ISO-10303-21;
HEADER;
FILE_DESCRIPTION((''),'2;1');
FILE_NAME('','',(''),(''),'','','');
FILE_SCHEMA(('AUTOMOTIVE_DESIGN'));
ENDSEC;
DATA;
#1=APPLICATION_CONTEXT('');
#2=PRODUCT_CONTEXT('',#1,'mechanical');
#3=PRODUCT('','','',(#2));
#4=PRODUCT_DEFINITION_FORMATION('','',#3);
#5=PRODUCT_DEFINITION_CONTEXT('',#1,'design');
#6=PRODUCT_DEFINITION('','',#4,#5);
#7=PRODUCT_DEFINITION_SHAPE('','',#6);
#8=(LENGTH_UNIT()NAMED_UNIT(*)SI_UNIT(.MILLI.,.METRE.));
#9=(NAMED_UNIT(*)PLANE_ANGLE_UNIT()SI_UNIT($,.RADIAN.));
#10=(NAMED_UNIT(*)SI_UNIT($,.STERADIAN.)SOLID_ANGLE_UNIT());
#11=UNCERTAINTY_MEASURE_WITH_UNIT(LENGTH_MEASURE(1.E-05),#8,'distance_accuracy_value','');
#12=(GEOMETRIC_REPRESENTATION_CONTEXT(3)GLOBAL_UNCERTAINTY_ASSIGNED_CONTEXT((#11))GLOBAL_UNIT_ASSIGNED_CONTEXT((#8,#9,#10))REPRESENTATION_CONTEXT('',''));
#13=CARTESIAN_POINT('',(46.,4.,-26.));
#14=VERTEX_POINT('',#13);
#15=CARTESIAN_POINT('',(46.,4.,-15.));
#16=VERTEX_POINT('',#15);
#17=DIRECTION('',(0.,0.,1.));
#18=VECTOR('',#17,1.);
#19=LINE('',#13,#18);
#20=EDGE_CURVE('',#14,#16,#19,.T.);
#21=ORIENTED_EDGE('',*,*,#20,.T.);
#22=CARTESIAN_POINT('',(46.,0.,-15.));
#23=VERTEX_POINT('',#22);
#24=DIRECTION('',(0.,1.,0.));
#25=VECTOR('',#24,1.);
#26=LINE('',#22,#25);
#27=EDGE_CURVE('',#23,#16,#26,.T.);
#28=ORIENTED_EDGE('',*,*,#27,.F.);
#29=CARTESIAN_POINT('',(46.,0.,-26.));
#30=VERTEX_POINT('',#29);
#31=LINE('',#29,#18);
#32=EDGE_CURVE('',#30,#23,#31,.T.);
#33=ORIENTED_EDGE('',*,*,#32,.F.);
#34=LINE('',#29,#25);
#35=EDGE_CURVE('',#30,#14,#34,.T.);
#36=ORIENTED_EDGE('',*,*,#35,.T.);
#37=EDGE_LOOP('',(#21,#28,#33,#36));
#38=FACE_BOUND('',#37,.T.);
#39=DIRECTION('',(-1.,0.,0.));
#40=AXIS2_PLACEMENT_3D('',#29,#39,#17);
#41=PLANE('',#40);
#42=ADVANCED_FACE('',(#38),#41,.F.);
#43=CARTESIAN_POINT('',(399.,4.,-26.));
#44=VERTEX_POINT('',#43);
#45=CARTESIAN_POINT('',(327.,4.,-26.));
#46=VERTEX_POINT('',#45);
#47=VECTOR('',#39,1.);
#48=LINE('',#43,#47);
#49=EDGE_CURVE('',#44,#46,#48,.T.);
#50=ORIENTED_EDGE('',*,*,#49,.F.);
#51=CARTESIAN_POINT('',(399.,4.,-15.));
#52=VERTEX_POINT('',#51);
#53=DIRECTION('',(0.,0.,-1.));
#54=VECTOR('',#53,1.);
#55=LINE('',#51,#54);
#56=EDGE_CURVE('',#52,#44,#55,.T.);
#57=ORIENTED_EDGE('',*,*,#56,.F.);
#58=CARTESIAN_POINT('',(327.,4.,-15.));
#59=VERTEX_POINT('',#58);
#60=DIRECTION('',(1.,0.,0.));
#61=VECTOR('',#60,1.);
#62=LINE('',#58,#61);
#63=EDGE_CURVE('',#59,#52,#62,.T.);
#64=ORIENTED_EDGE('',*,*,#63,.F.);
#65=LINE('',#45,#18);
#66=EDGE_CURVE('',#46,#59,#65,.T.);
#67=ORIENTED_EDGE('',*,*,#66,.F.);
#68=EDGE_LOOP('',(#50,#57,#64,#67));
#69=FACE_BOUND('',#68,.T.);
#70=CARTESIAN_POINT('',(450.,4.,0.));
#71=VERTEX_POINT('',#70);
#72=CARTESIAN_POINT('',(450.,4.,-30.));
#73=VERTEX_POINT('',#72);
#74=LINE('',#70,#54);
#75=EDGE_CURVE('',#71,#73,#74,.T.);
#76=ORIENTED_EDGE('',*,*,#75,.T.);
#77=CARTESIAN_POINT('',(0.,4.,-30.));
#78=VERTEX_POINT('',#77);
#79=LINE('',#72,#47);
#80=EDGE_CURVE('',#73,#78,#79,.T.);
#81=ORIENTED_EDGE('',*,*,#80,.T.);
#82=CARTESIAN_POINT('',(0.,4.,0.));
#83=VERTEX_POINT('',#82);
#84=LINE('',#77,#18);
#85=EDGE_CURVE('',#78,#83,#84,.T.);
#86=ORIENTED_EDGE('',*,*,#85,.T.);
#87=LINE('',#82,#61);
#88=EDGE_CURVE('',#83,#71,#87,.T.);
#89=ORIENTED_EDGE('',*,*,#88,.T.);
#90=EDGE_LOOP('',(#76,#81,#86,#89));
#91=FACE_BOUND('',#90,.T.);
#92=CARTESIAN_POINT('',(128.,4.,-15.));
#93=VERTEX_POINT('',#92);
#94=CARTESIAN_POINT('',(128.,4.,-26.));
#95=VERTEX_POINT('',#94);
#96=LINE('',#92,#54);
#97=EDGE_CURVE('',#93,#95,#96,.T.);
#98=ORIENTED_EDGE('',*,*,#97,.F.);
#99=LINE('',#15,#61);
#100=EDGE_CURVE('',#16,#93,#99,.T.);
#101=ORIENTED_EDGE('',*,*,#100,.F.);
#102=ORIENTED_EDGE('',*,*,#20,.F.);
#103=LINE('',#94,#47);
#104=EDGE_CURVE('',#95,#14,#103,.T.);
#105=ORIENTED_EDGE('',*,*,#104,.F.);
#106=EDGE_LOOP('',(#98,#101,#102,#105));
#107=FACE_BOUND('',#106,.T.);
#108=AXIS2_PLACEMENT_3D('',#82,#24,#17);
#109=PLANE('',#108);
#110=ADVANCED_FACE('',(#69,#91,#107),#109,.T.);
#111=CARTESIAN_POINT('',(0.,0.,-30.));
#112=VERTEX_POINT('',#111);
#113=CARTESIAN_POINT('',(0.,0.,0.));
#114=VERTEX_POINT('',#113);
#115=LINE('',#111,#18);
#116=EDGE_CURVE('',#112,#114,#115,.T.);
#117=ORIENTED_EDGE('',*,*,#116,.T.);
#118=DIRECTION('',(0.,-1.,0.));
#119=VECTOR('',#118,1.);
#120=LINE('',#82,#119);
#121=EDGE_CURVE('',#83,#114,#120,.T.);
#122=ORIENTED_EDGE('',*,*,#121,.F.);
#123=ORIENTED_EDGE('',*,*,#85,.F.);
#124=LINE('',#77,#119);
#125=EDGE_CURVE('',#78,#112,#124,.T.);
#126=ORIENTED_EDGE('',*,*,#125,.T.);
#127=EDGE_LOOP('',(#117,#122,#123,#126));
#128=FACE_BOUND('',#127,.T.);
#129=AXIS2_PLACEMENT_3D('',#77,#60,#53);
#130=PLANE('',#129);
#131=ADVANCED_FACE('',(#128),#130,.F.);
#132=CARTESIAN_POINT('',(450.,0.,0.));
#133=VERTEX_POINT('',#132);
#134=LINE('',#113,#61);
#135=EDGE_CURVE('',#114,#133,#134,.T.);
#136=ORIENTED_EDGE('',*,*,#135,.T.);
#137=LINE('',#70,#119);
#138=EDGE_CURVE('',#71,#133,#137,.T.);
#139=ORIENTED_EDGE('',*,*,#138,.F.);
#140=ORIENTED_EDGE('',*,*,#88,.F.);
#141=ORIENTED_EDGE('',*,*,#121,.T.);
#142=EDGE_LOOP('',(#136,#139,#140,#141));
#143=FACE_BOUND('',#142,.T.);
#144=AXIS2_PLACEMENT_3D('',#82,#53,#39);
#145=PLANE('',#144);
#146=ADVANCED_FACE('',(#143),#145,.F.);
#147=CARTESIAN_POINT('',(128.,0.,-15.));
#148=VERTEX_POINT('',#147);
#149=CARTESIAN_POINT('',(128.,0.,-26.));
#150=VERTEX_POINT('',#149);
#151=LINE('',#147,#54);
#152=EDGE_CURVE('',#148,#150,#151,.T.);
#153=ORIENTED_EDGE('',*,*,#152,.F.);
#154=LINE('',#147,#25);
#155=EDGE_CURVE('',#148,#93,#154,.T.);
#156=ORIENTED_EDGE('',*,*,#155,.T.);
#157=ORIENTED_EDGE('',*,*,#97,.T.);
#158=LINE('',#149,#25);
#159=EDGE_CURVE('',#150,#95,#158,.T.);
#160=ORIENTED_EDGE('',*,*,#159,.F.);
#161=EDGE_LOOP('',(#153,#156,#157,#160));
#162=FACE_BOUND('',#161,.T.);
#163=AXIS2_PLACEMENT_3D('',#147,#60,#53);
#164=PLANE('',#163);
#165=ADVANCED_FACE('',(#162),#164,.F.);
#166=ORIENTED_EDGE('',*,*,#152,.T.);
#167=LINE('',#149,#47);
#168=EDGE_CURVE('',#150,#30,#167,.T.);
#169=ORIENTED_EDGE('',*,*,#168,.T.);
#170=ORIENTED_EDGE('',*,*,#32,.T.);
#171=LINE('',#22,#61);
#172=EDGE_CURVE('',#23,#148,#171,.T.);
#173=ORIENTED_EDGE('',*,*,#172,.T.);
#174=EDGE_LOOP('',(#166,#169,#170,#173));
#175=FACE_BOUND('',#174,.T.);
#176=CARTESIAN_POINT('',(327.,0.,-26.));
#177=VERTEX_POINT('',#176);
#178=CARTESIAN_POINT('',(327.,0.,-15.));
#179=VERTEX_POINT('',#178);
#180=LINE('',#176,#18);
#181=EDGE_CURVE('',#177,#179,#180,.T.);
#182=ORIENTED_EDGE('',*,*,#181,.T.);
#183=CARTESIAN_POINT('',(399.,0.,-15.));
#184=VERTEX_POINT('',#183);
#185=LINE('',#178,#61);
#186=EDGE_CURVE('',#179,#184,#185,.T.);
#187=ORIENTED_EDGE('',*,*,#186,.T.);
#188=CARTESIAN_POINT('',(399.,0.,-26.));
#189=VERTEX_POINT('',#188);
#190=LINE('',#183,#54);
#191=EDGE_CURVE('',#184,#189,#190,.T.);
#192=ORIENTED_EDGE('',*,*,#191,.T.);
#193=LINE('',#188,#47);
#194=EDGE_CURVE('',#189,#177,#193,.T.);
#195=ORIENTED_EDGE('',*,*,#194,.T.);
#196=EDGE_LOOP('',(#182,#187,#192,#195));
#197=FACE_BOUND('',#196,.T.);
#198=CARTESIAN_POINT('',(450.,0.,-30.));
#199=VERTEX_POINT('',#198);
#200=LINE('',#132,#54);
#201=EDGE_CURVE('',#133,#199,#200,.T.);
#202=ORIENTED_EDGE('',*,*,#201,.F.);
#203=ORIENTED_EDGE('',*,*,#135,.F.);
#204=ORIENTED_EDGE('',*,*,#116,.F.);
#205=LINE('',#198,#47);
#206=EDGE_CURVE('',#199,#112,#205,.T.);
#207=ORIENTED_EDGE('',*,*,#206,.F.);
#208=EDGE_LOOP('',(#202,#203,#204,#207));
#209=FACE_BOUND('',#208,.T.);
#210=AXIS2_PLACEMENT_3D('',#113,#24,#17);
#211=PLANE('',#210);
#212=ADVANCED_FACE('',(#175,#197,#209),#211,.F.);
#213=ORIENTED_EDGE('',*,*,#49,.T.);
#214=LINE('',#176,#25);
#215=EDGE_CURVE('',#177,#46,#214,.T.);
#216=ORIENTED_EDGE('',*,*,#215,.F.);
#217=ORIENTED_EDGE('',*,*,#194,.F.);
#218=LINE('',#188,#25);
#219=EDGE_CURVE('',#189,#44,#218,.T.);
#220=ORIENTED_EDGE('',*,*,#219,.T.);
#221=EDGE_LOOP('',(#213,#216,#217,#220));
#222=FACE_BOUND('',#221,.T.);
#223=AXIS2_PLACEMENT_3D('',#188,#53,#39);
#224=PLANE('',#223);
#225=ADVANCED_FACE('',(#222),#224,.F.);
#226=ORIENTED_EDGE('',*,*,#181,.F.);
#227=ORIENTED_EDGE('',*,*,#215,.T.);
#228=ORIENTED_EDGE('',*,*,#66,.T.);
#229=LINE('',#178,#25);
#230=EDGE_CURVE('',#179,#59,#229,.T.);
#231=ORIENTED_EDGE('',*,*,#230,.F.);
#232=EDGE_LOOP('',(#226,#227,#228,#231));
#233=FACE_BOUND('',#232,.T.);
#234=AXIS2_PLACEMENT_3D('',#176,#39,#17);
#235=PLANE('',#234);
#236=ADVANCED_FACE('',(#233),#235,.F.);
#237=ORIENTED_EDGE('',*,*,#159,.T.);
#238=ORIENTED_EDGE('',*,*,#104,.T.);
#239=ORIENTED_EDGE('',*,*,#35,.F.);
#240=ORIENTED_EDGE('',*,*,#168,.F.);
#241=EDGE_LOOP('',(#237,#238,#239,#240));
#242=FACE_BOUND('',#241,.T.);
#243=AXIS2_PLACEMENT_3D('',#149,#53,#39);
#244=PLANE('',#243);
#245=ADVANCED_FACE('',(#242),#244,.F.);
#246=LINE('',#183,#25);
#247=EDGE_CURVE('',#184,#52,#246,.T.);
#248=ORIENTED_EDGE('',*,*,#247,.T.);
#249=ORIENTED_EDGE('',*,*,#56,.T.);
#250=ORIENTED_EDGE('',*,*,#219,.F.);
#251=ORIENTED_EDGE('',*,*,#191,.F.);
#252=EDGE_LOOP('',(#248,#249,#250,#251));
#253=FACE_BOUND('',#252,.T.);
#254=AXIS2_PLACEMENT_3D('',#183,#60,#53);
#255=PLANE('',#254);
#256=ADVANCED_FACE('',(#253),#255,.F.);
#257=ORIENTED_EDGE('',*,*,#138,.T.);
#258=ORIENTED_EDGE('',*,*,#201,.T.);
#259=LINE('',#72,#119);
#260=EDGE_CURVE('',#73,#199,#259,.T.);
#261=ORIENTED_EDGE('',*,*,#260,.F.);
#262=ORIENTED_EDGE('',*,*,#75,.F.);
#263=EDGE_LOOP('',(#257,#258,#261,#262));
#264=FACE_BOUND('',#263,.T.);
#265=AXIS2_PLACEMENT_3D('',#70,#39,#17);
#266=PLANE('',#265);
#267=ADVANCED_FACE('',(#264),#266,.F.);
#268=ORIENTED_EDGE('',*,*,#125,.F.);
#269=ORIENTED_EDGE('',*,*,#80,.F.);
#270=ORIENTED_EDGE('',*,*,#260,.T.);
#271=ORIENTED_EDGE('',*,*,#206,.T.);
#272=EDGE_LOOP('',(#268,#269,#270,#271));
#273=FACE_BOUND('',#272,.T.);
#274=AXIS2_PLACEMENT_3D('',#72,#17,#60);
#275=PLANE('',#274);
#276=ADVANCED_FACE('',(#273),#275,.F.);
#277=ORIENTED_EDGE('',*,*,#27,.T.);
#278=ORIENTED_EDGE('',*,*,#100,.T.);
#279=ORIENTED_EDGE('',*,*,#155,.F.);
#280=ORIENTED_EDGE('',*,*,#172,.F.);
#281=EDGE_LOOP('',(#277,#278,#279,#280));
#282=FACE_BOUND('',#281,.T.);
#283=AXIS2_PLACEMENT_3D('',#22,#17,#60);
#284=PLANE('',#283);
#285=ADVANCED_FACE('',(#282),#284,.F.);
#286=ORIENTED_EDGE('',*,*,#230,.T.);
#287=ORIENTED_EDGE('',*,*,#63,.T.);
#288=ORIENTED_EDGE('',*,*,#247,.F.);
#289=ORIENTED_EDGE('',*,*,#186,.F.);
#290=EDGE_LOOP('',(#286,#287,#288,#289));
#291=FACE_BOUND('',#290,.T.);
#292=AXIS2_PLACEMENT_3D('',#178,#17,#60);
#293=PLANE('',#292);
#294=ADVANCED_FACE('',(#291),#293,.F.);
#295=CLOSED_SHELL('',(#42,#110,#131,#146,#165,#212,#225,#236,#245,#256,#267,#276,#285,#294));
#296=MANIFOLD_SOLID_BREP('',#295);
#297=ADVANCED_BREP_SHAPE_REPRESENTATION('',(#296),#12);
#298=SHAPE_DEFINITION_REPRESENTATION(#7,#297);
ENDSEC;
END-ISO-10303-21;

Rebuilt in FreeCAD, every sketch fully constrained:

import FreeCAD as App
import Part
import Sketcher
from FreeCAD import Vector


def add_polygon(sketch, points):
    """Adds a closed chain of lines whose ends are joined by coincident constraints."""
    first, n = sketch.GeometryCount, len(points)
    for a, b in zip(points, points[1:] + points[:1]):
        sketch.addGeometry(Part.LineSegment(App.Vector(*a, 0), App.Vector(*b, 0)), False)
    for i in range(n):
        sketch.addConstraint(Sketcher.Constraint("Coincident", first + i, 2, first + (i + 1) % n, 1))

doc = App.newDocument("Part")
body = doc.addObject("PartDesign::Body", "Body")

# Sketch on XZ plane
sketch1 = doc.addObject("Sketcher::SketchObject", "Sketch")
body.addObject(sketch1)
sketch1.AttachmentSupport = (doc.XZ_Plane, [""])
sketch1.MapMode = "FlatFace"
add_polygon(sketch1, [(0, -30), (0, 0), (450, 0), (450, -30)])  # lines 0-3
sketch1.addConstraint(Sketcher.Constraint("Vertical", 0))
sketch1.addConstraint(Sketcher.Constraint("Horizontal", 1))
sketch1.addConstraint(Sketcher.Constraint("Vertical", 2))
sketch1.addConstraint(Sketcher.Constraint("Horizontal", 3))
sketch1.addConstraint(Sketcher.Constraint("Coincident", 0, 2, -1, 1))
sketch1.addConstraint(Sketcher.Constraint("DistanceX", 1, 1, 1, 2, 450.0))
sketch1.addConstraint(Sketcher.Constraint("DistanceY", 0, 1, 0, 2, 30.0))
pad1 = doc.addObject("PartDesign::Pad", "Pad")
body.addObject(pad1)
pad1.Profile = sketch1
pad1.Length = 4
pad1.Reversed = True

# Sketch on XZ plane
sketch2 = doc.addObject("Sketcher::SketchObject", "Sketch001")
body.addObject(sketch2)
sketch2.AttachmentSupport = (doc.XZ_Plane, [""])
sketch2.MapMode = "FlatFace"
sketch2.AttachmentOffset = App.Placement(Vector(0, 0, -4), App.Rotation())
add_polygon(sketch2, [(46, -26), (46, -15), (128, -15), (128, -26)])  # lines 0-3
add_polygon(sketch2, [(327, -26), (327, -15), (399, -15), (399, -26)])  # lines 4-7
sketch2.addConstraint(Sketcher.Constraint("Vertical", 0))
sketch2.addConstraint(Sketcher.Constraint("Horizontal", 1))
sketch2.addConstraint(Sketcher.Constraint("Vertical", 2))
sketch2.addConstraint(Sketcher.Constraint("Horizontal", 3))
sketch2.addConstraint(Sketcher.Constraint("Vertical", 4))
sketch2.addConstraint(Sketcher.Constraint("Horizontal", 5))
sketch2.addConstraint(Sketcher.Constraint("Vertical", 6))
sketch2.addConstraint(Sketcher.Constraint("Horizontal", 7))
sketch2.addConstraint(Sketcher.Constraint("Horizontal", 1, 2, 4, 2))
sketch2.addConstraint(Sketcher.Constraint("Horizontal", 3, 2, 6, 2))
sketch2.addConstraint(Sketcher.Constraint("DistanceX", 1, 1, 1, 2, 82.0))
sketch2.addConstraint(Sketcher.Constraint("DistanceX", 5, 1, 5, 2, 72.0))
sketch2.addConstraint(Sketcher.Constraint("DistanceY", 0, 1, 0, 2, 11.0))
sketch2.addConstraint(Sketcher.Constraint("DistanceX", -1, 1, 0, 2, 46.0))
sketch2.addConstraint(Sketcher.Constraint("DistanceY", 0, 2, -1, 1, 15.0))
sketch2.addConstraint(Sketcher.Constraint("DistanceX", -1, 1, 4, 2, 327.0))
pocket1 = doc.addObject("PartDesign::Pocket", "Pocket")
body.addObject(pocket1)
pocket1.Profile = sketch2
pocket1.Type = "ThroughAll"
pocket1.Reversed = True

doc.recompute()
